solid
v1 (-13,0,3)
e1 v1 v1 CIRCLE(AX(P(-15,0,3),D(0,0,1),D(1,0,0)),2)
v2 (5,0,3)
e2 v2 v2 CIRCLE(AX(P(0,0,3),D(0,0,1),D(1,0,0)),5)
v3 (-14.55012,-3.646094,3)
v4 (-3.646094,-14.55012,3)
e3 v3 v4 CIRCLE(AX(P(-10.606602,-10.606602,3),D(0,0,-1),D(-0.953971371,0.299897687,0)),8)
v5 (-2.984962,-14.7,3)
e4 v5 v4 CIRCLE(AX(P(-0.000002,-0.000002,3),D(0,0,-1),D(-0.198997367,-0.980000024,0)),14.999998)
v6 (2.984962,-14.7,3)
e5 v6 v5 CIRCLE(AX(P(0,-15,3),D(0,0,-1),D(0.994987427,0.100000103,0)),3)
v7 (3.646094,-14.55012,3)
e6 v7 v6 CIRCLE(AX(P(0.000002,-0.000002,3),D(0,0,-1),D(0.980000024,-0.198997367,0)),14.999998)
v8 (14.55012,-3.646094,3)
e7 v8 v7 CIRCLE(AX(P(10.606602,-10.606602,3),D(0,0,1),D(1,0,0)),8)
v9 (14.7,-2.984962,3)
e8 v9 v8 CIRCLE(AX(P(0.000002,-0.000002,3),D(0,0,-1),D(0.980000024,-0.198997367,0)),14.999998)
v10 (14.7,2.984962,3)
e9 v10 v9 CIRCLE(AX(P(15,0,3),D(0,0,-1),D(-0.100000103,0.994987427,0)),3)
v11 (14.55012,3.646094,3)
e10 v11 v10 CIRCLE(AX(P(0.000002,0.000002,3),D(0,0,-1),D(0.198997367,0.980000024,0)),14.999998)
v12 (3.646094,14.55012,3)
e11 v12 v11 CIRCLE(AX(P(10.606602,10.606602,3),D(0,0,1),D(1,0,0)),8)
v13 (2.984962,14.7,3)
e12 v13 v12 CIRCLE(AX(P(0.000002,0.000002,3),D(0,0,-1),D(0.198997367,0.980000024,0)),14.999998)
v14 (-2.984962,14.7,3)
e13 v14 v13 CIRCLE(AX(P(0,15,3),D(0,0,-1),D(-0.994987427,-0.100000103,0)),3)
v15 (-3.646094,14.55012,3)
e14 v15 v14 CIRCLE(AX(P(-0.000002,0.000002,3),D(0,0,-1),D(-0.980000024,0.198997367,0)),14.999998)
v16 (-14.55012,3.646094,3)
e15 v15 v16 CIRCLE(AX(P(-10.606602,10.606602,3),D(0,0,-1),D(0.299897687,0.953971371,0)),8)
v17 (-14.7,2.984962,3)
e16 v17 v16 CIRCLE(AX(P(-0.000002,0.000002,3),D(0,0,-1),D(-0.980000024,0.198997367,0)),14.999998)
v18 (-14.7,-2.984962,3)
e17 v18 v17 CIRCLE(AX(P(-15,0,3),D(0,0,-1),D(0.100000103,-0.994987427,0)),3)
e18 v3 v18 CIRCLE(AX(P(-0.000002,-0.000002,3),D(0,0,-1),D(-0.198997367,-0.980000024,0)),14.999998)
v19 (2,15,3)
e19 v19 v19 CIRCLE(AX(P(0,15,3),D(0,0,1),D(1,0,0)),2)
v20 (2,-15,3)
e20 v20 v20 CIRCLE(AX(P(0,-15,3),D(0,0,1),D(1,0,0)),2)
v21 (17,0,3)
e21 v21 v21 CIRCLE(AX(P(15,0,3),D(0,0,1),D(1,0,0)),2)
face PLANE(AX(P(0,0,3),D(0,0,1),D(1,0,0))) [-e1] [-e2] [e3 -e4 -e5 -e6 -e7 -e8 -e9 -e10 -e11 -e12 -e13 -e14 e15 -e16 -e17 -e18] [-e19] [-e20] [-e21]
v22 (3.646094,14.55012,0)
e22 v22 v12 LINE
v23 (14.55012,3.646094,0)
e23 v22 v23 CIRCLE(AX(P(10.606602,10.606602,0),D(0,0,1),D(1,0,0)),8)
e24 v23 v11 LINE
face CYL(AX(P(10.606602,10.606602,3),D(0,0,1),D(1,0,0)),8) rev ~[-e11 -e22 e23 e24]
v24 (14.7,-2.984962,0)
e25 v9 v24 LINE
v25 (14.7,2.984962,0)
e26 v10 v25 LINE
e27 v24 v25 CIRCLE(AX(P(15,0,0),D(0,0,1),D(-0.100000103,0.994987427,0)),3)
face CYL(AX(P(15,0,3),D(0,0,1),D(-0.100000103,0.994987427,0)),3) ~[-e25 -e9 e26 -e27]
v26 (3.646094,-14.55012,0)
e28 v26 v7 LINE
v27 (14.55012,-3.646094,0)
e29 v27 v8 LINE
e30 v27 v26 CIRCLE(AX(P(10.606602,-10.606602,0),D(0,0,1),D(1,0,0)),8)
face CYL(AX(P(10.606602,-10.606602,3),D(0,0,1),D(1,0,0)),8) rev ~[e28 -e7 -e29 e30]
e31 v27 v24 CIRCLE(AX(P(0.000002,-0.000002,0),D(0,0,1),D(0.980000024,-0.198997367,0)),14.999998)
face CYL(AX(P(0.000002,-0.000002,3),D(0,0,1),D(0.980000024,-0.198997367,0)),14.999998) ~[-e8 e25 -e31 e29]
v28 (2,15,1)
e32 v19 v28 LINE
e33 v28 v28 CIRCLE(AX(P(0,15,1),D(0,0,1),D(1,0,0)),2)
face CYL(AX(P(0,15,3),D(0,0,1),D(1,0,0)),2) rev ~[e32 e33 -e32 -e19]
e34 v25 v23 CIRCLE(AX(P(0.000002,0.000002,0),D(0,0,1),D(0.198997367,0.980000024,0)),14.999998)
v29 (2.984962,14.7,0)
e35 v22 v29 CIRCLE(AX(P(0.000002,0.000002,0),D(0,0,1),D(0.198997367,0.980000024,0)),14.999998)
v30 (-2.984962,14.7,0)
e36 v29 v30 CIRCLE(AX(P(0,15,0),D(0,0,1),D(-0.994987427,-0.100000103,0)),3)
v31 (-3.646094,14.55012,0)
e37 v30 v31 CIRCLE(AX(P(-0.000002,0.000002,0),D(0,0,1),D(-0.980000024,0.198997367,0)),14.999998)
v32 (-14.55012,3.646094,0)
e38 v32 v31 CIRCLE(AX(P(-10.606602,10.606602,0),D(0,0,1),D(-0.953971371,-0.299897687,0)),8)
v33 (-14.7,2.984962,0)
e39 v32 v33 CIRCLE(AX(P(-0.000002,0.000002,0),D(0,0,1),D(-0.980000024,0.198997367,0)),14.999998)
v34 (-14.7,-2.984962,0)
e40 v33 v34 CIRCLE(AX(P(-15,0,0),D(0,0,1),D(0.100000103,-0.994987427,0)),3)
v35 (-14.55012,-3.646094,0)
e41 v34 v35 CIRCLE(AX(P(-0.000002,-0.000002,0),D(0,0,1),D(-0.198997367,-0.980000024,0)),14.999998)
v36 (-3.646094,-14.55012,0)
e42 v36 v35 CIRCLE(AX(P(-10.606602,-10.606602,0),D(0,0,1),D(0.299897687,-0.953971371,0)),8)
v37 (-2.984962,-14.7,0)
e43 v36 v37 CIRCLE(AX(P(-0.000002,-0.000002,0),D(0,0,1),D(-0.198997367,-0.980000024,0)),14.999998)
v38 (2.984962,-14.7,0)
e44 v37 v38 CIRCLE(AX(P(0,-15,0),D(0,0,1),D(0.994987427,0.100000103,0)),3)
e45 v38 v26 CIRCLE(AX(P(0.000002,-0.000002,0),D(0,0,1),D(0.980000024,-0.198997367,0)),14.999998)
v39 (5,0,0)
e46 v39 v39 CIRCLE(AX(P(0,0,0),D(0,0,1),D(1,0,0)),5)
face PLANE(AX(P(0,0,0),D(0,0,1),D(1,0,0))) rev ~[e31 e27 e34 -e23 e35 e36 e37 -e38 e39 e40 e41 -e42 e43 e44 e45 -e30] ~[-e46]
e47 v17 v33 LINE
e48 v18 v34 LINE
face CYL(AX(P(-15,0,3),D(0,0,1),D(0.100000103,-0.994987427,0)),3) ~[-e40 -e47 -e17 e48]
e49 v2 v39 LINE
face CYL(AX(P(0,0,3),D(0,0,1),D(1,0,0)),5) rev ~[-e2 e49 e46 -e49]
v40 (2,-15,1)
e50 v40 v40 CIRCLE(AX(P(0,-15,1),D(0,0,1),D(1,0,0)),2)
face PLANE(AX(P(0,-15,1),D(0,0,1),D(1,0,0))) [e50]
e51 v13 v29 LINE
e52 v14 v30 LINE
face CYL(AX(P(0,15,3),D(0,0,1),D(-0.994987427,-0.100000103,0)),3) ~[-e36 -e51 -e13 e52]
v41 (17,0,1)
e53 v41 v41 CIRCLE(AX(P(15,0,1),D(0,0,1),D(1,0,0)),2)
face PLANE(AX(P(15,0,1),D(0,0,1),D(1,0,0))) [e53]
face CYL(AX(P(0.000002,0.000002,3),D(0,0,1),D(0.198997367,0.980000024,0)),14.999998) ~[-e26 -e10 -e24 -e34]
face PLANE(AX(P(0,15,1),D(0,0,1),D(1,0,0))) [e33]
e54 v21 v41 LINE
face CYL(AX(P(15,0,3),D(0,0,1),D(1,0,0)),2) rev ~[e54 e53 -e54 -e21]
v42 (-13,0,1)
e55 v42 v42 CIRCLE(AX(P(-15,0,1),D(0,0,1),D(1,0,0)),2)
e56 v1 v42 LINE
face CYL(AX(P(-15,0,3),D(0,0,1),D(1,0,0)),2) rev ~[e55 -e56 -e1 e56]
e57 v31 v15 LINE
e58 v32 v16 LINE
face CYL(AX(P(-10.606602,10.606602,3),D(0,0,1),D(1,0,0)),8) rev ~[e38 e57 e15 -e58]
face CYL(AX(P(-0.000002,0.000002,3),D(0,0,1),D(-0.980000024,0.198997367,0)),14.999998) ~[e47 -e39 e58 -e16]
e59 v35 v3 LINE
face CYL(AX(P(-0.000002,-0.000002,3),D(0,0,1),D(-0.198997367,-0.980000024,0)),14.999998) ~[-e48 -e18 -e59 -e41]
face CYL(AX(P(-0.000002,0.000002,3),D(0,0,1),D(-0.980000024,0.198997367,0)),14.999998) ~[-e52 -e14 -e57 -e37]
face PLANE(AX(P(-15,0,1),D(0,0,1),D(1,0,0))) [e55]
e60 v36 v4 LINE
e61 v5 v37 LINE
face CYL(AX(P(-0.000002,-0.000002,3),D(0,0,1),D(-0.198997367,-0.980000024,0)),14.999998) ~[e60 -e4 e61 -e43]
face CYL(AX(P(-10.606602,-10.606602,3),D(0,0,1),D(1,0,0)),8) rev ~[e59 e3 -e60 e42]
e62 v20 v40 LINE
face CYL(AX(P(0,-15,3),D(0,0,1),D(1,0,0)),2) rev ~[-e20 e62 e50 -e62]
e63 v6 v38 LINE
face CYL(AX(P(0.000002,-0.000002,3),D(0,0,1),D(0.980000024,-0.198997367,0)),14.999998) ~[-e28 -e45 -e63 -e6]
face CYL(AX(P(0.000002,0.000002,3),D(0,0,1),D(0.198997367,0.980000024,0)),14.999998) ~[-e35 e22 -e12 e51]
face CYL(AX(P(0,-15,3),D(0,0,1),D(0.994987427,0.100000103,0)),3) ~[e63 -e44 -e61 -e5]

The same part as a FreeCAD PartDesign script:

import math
import FreeCAD as App
import Part
import Sketcher

V = App.Vector


def edges_at(feature, points):
    """Names of the edges that pass closest to the given points."""
    edges = feature.Shape.Edges
    near = lambda p: min(range(len(edges)), key=lambda i: edges[i].distToShape(Part.Vertex(*p))[0])
    return sorted({f"Edge{near(p) + 1}" for p in points})

doc = App.newDocument("Part")
body = doc.addObject("PartDesign::Body", "Body")

# Sketch on XY plane
sketch1 = body.newObject("Sketcher::SketchObject", "Sketch")
sketch1.AttachmentSupport = (doc.getObject("XY_Plane"), [""])
sketch1.MapMode = "FlatFace"
sketch1.addGeometry(Part.Circle(V(0, 0, 0), V(0, 0, 1), 20), False)
sketch1.addConstraint([
    Sketcher.Constraint("Coincident", 0, 3, -1, 1),
    Sketcher.Constraint("Diameter", 0, 40.0),
])
pad1 = body.newObject("PartDesign::Pad", "Pad")
pad1.Profile = sketch1
pad1.Length = 3

# Sketch on XY plane
sketch2 = body.newObject("Sketcher::SketchObject", "Sketch001")
sketch2.AttachmentSupport = (doc.getObject("XY_Plane"), [""])
sketch2.MapMode = "FlatFace"
sketch2.AttachmentOffset = App.Placement(V(0, 0, 3), App.Rotation())
sketch2.addGeometry(Part.Circle(V(0, 0, 0), V(0, 0, 1), 5), False)
sketch2.addConstraint([
    Sketcher.Constraint("Coincident", 0, 3, -1, 1),
    Sketcher.Constraint("Diameter", 0, 10.0),
])
pocket1 = body.newObject("PartDesign::Pocket", "Pocket")
pocket1.Profile = sketch2
pocket1.Length = 25

# Sketch on XY plane
sketch3 = body.newObject("Sketcher::SketchObject", "Sketch002")
sketch3.AttachmentSupport = (doc.getObject("XY_Plane"), [""])
sketch3.MapMode = "FlatFace"
sketch3.AttachmentOffset = App.Placement(V(0, 0, 3), App.Rotation())
sketch3.addGeometry([
    Part.Circle(V(0, 15, 0), V(0, 0, 1), 2),
    Part.Circle(V(15, 0, 0), V(0, 0, 1), 2),
    Part.Circle(V(0, -15, 0), V(0, 0, 1), 2),
    Part.Circle(V(-15, 0, 0), V(0, 0, 1), 2),
], False)
sketch3.addConstraint([
    Sketcher.Constraint("Equal", 0, 1),
    Sketcher.Constraint("Equal", 1, 2),
    Sketcher.Constraint("Equal", 2, 3),
    Sketcher.Constraint("Symmetric", 0, 3, 2, 3, -1, 1),
    Sketcher.Constraint("Symmetric", 1, 3, 3, 3, -1, 1),
    Sketcher.Constraint("PointOnObject", 0, 3, -2),
    Sketcher.Constraint("PointOnObject", 1, 3, -1),
    Sketcher.Constraint("Diameter", 0, 4.0),
    Sketcher.Constraint("DistanceY", -1, 1, 0, 3, 15.0),
    Sketcher.Constraint("DistanceX", -1, 1, 1, 3, 15.0),
])
pocket2 = body.newObject("PartDesign::Pocket", "Pocket001")
pocket2.Profile = sketch3
pocket2.Length = 2

# Sketch on XY plane
sketch4 = body.newObject("Sketcher::SketchObject", "Sketch003")
sketch4.AttachmentSupport = (doc.getObject("XY_Plane"), [""])
sketch4.MapMode = "FlatFace"
sketch4.AttachmentOffset = App.Placement(V(0, 0, 3), App.Rotation())
sketch4.addGeometry([
    Part.Circle(V(-11, 11, 0), V(0, 0, 1), 8),
    Part.Circle(V(11, 11, 0), V(0, 0, 1), 8),
    Part.Circle(V(11, -11, 0), V(0, 0, 1), 8),
    Part.Circle(V(-11, -11, 0), V(0, 0, 1), 8),
], False)
sketch4.addConstraint([
    Sketcher.Constraint("Equal", 0, 1),
    Sketcher.Constraint("Equal", 1, 2),
    Sketcher.Constraint("Equal", 2, 3),
    Sketcher.Constraint("Symmetric", 0, 3, 2, 3, -1, 1),
    Sketcher.Constraint("Symmetric", 1, 3, 3, 3, -1, 1),
    Sketcher.Constraint("Symmetric", 0, 3, 1, 3, -2),
    Sketcher.Constraint("Diameter", 0, 16.0),
    Sketcher.Constraint("DistanceX", 0, 3, -1, 1, 10.606602),
    Sketcher.Constraint("DistanceY", -1, 1, 0, 3, 10.606602),
])
pocket3 = body.newObject("PartDesign::Pocket", "Pocket002")
pocket3.Profile = sketch4
pocket3.Length = 25
doc.recompute()

chamfer = body.newObject("PartDesign::Chamfer", "Chamfer")
chamfer.Base = (pocket3, edges_at(pocket3, [(-20, 0, 3)]))
chamfer.Size = 1.5

# Sketch on XY plane
sketch5 = body.newObject("Sketcher::SketchObject", "Sketch004")
sketch5.AttachmentSupport = (doc.getObject("XY_Plane"), [""])
sketch5.MapMode = "FlatFace"
sketch5.AttachmentOffset = App.Placement(V(0, 0, 3), App.Rotation())
sketch5.addGeometry([
    Part.Circle(V(1.1, 0, 0), V(0, 0, 1), 28.4),  # 0
    Part.ArcOfCircle(Part.Circle(V(0, 0, 0), V(0, 0, 1), 15), math.radians(-169), math.radians(-101)),  # 1
    Part.ArcOfCircle(Part.Circle(V(-15, 0, 0), V(0, 0, 1), 3), math.radians(84), math.radians(276)),  # 2
    Part.ArcOfCircle(Part.Circle(V(0, 0, 0), V(0, 0, 1), 15), math.radians(101), math.radians(169)),  # 3
    Part.ArcOfCircle(Part.Circle(V(0, 15, 0), V(0, 0, 1), 3), math.radians(-6), math.radians(186)),  # 4
    Part.ArcOfCircle(Part.Circle(V(0, 0, 0), V(0, 0, 1), 15), math.radians(11), math.radians(79)),  # 5
    Part.ArcOfCircle(Part.Circle(V(15, 0, 0), V(0, 0, 1), 3), math.radians(-96), math.radians(96)),  # 6
    Part.ArcOfCircle(Part.Circle(V(0, 0, 0), V(0, 0, 1), 15), math.radians(-79), math.radians(-11)),  # 7
    Part.ArcOfCircle(Part.Circle(V(0, -15, 0), V(0, 0, 1), 3), math.radians(174), math.radians(366)),  # 8
], False)
sketch5.addConstraint([
    Sketcher.Constraint("Coincident", 1, 1, 2, 2),
    Sketcher.Constraint("Coincident", 2, 1, 3, 2),
    Sketcher.Constraint("Coincident", 3, 1, 4, 2),
    Sketcher.Constraint("Coincident", 4, 1, 5, 2),
    Sketcher.Constraint("Coincident", 5, 1, 6, 2),
    Sketcher.Constraint("Coincident", 6, 1, 7, 2),
    Sketcher.Constraint("Coincident", 7, 1, 8, 2),
    Sketcher.Constraint("Coincident", 8, 1, 1, 2),
    Sketcher.Constraint("Coincident", 1, 3, -1, 1),
    Sketcher.Constraint("Coincident", 3, 3, -1, 1),
    Sketcher.Constraint("Coincident", 5, 3, -1, 1),
    Sketcher.Constraint("Coincident", 7, 3, -1, 1),
    Sketcher.Constraint("Equal", 1, 3),
    Sketcher.Constraint("Equal", 2, 4),
    Sketcher.Constraint("Equal", 3, 5),
    Sketcher.Constraint("Equal", 4, 6),
    Sketcher.Constraint("Equal", 5, 7),
    Sketcher.Constraint("Equal", 6, 8),
    Sketcher.Constraint("Symmetric", 2, 3, 6, 3, -1, 1),
    Sketcher.Constraint("Symmetric", 4, 3, 8, 3, -1, 1),
    Sketcher.Constraint("PointOnObject", 0, 3, -1),
    Sketcher.Constraint("PointOnObject", 2, 3, -1),
    Sketcher.Constraint("PointOnObject", 4, 3, -2),
    Sketcher.Constraint("Radius", 2, 3.0),
    Sketcher.Constraint("DistanceX", 2, 3, -1, 1, 15.0),
    Sketcher.Constraint("DistanceY", -1, 1, 4, 3, 15.0),
    Sketcher.Constraint("DistanceX", 1, 1, -1, 1, 14.7),
    Sketcher.Constraint("Diameter", 0, 56.841536),
    Sketcher.Constraint("DistanceX", 1, 3, 0, 3, 1.058919),
])
pocket4 = body.newObject("PartDesign::Pocket", "Pocket003")
pocket4.Profile = sketch5
pocket4.Length = 25

doc.recompute()
